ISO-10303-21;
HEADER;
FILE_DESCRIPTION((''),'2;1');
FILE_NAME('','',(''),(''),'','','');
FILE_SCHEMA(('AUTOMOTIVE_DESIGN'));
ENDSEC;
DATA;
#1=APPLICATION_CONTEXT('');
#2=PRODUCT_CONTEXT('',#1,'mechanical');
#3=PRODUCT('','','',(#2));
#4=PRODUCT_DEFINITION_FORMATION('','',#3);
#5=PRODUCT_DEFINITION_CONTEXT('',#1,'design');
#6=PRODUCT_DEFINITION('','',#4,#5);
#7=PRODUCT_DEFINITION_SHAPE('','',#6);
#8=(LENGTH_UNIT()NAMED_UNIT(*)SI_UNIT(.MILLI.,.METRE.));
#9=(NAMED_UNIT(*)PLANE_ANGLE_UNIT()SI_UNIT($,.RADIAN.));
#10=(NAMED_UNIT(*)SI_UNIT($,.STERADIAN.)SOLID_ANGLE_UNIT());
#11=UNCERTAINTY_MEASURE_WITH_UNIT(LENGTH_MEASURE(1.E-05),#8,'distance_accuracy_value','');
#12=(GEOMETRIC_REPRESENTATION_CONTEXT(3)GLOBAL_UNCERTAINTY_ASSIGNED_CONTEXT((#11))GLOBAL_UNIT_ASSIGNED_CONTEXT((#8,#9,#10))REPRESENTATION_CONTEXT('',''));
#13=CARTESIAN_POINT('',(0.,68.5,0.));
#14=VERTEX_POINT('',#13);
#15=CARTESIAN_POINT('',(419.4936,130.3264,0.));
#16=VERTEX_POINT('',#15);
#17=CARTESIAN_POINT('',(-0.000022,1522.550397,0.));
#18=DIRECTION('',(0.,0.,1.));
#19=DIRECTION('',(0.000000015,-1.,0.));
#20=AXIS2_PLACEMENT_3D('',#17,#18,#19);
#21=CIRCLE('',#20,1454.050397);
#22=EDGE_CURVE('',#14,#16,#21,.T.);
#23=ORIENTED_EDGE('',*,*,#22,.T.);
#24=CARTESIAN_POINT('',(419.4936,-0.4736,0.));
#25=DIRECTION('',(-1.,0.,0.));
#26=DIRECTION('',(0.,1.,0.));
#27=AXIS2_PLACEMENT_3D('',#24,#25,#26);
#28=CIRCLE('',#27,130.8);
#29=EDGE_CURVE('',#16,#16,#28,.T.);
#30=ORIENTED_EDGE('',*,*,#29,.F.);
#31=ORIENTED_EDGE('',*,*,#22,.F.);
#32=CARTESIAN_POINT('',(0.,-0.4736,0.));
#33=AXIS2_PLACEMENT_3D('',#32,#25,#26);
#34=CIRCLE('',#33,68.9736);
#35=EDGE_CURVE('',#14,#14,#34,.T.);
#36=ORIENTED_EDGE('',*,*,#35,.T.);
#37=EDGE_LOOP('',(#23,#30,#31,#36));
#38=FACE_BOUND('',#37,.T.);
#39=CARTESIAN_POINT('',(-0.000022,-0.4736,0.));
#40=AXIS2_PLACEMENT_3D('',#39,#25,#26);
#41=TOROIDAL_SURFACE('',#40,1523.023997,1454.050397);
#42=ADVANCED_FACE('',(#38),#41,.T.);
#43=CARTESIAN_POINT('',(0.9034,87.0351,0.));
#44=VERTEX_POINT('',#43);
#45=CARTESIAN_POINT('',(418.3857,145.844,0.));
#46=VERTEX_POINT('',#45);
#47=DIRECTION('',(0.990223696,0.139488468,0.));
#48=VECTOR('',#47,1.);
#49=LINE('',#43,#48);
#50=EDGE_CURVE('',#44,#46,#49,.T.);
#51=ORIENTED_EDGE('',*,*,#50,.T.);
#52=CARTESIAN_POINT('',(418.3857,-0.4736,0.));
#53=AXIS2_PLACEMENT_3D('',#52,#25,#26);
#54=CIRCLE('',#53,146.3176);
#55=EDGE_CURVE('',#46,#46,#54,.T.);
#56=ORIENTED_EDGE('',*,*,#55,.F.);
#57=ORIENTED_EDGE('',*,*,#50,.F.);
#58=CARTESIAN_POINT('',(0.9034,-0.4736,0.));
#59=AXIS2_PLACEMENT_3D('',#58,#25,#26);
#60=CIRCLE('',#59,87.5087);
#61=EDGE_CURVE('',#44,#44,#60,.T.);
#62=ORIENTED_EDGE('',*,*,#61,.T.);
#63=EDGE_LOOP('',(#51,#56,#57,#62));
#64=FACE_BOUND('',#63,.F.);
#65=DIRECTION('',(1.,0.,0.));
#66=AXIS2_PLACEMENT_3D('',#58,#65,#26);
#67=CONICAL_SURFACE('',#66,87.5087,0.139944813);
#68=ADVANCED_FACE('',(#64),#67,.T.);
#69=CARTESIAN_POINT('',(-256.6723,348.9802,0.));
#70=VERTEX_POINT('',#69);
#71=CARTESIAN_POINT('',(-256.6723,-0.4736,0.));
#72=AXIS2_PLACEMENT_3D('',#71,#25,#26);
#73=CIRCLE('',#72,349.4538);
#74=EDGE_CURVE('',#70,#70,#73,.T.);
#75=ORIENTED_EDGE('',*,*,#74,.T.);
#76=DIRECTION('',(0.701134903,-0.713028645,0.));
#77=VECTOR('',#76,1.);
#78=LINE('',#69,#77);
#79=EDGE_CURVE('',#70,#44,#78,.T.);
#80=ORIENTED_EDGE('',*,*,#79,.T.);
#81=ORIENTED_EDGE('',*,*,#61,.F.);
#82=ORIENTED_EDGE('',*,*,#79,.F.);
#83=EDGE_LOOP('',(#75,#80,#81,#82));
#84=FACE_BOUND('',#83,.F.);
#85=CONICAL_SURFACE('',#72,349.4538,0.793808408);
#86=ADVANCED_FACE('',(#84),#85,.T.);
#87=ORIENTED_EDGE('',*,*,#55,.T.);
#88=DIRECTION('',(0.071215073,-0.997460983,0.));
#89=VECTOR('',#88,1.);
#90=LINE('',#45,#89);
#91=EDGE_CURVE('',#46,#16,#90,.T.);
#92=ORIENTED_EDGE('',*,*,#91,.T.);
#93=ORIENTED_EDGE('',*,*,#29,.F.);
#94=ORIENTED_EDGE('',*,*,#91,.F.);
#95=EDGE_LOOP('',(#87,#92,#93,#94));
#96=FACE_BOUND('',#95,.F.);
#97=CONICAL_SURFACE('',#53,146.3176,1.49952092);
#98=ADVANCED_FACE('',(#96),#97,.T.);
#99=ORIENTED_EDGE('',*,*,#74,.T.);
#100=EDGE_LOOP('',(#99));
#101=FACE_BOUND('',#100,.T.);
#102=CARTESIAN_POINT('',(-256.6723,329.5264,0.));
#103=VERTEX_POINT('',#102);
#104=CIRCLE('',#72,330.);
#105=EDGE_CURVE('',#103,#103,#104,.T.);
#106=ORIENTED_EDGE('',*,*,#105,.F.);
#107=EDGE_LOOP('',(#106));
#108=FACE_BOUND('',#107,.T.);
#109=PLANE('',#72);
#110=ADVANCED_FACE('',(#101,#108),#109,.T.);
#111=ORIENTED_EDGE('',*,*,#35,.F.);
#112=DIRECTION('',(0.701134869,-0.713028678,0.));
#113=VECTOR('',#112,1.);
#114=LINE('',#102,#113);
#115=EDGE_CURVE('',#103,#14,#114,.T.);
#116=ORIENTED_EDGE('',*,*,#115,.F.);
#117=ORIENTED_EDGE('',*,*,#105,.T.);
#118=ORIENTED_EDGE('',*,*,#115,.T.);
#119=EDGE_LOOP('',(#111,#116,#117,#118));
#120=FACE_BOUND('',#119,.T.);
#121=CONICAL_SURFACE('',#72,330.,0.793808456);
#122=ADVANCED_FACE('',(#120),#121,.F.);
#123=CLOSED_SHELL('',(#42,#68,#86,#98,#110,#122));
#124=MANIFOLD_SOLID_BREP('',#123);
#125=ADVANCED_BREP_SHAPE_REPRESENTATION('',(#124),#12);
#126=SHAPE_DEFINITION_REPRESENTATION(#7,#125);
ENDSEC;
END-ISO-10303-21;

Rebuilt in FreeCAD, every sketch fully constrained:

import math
import FreeCAD as App
import Part
import Sketcher
Q = App.Units.Quantity

doc = App.newDocument("Part")
body = doc.addObject("PartDesign::Body", "Body")

sketch1 = body.newObject("Sketcher::SketchObject", "Sketch")
sketch1.AttachmentSupport = (doc.getObject("XY_Plane"), [""])
sketch1.MapMode = "FlatFace"
sketch1.addGeometry(Part.LineSegment(App.Vector(-256.6723, 348.9802, 0), App.Vector(-256.6723, 329.5264, 0)), False)
sketch1.addGeometry(Part.LineSegment(App.Vector(-256.6723, 329.5264, 0), App.Vector(0, 68.5, 0)), False)
sketch1.addGeometry(Part.ArcOfCircle(Part.Circle(App.Vector(0, 1522.5504, 0), App.Vector(0, 0, 1), 1454.0504), math.radians(-90), math.radians(-73.231823)), False)
sketch1.addGeometry(Part.LineSegment(App.Vector(419.4936, 130.3264, 0), App.Vector(418.3857, 145.844, 0)), False)
sketch1.addGeometry(Part.LineSegment(App.Vector(418.3857, 145.844, 0), App.Vector(0.9034, 87.0351, 0)), False)
sketch1.addGeometry(Part.LineSegment(App.Vector(0.9034, 87.0351, 0), App.Vector(-256.6723, 348.9802, 0)), False)
sketch1.addGeometry(Part.LineSegment(App.Vector(419.4936, -0.4736, 0), App.Vector(-256.6723, -0.4736, 0)), True)
sketch1.addConstraint(Sketcher.Constraint("Coincident", 0, 2, 1, 1))
sketch1.addConstraint(Sketcher.Constraint("Coincident", 1, 2, 2, 1))
sketch1.addConstraint(Sketcher.Constraint("Coincident", 2, 2, 3, 1))
sketch1.addConstraint(Sketcher.Constraint("Coincident", 3, 2, 4, 1))
sketch1.addConstraint(Sketcher.Constraint("Coincident", 4, 2, 5, 1))
sketch1.addConstraint(Sketcher.Constraint("Coincident", 5, 2, 0, 1))
sketch1.addConstraint(Sketcher.Constraint("Vertical", 0))
sketch1.addConstraint(Sketcher.Constraint("Horizontal", 6))
sketch1.addConstraint(Sketcher.Constraint("PointOnObject", 2, 3, -2))
sketch1.addConstraint(Sketcher.Constraint("PointOnObject", 1, 2, -2))
sketch1.addConstraint(Sketcher.Constraint("Parallel", 1, 5))
sketch1.addConstraint(Sketcher.Constraint("Vertical", 5, 2, 6, 2))
sketch1.addConstraint(Sketcher.Constraint("DistanceY", 6, 1, 0, 2, Q("330 mm")))
sketch1.addConstraint(Sketcher.Constraint("DistanceY", -1, 1, 1, 2, Q("68.5 mm")))
sketch1.addConstraint(Sketcher.Constraint("Radius", 2, Q("1454.0504 mm")))
sketch1.addConstraint(Sketcher.Constraint("DistanceX", 6, 2, 6, 1, Q("676.166 mm")))
sketch1.addConstraint(Sketcher.Constraint("Distance", 3, Q("15.557 mm")))
sketch1.addConstraint(Sketcher.Constraint("Distance", 4, Q("421.604 mm")))
sketch1.addConstraint(Sketcher.Constraint("DistanceY", 0, 2, 0, 1, Q("19.4538 mm")))
sketch1.addConstraint(Sketcher.Constraint("DistanceY", -1, 1, 3, 2, Q("145.844 mm")))
sketch1.addConstraint(Sketcher.Constraint("DistanceY", -1, 1, 4, 2, Q("87.035 mm")))
sketch1.addConstraint(Sketcher.Constraint("DistanceY", 0, 2, 2, 3, Q("1193.024 mm")))
sketch1.addConstraint(Sketcher.Constraint("DistanceX", 0, 2, 3, 2, Q("675.058 mm")))
revolution = body.newObject("PartDesign::Revolution", "Revolution")
revolution.Profile = sketch1
revolution.ReferenceAxis = (sketch1, ["Axis0"])
revolution.Angle = 360

doc.recompute()
